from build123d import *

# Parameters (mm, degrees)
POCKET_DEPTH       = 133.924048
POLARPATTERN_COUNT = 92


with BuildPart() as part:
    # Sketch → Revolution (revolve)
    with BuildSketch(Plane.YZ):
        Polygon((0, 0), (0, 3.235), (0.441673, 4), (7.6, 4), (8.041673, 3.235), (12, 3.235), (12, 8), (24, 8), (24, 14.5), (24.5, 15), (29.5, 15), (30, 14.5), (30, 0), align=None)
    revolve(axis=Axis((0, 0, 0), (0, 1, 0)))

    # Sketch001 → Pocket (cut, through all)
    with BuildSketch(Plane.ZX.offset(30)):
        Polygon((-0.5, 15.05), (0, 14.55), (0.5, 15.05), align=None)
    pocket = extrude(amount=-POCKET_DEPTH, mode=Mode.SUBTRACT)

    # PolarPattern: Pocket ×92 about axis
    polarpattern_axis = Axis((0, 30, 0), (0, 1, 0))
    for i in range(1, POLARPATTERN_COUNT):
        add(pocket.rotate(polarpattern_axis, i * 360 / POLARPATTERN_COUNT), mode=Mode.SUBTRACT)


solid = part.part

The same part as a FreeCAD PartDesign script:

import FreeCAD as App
import Part
import Sketcher
Q = App.Units.Quantity


def add_polygon(sketch, points):
    """Adds a closed chain of lines whose ends are joined by coincident constraints."""
    first, n = sketch.GeometryCount, len(points)
    for a, b in zip(points, points[1:] + points[:1]):
        sketch.addGeometry(Part.LineSegment(App.Vector(*a, 0), App.Vector(*b, 0)), False)
    for i in range(n):
        sketch.addConstraint(Sketcher.Constraint("Coincident", first + i, 2, first + (i + 1) % n, 1))

doc = App.newDocument("Part")
params = doc.addObject("Spreadsheet::Sheet", "Params")
for row, (alias, value) in enumerate([
    ("sketch1_width", "30 mm"),
    ("sketch1_width2", "5 mm"),
    ("sketch1_width3", "12 mm"),
    ("sketch1_height", "14.5 mm"),
    ("sketch1_height2", "6.5 mm"),
    ("revolution_angle", "360 deg"),
    ("sketch2_height", "1 mm"),
], start=1):
    params.set(f"A{row}", alias)
    params.set(f"B{row}", "=" + value)
    params.setAlias(f"B{row}", alias)

body = doc.addObject("PartDesign::Body", "Body")

sketch1 = body.newObject("Sketcher::SketchObject", "Sketch")
sketch1.AttachmentSupport = (doc.getObject("YZ_Plane"), [""])
sketch1.MapMode = "FlatFace"
add_polygon(sketch1, [(0, 3.235), (0, 0), (30, 0), (30, 14.5), (29.5, 15), (24.5, 15), (24, 14.5), (24, 8), (12, 8), (12, 3.235), (8.041673, 3.235), (7.6, 4), (0.441673, 4)])
sketch1.addConstraint([
    Sketcher.Constraint("Vertical", 0),
    Sketcher.Constraint("Horizontal", 1),
    Sketcher.Constraint("Vertical", 2),
    Sketcher.Constraint("Horizontal", 4),
    Sketcher.Constraint("Vertical", 6),
    Sketcher.Constraint("Horizontal", 7),
    Sketcher.Constraint("Vertical", 8),
    Sketcher.Constraint("Horizontal", 9),
    Sketcher.Constraint("Horizontal", 11),
    Sketcher.Constraint("Coincident", 0, 2, -1, 1),
    Sketcher.Constraint("Perpendicular", 3, 5),
    Sketcher.Constraint("Horizontal", 2, 2, 5, 2),
    Sketcher.Constraint("Horizontal", 9, 2, 12, 2),
    Sketcher.Constraint("Equal", 3, 5),
    Sketcher.Constraint("Equal", 10, 12),
    Sketcher.Constraint("DistanceX", 1, 1, 1, 2, 30.0),
    Sketcher.Constraint("DistanceX", 4, 2, 4, 1, 5.0),
    Sketcher.Constraint("DistanceX", 7, 2, 7, 1, 12.0),
    Sketcher.Constraint("Angle", 10, Q("120.000002 deg")),
    Sketcher.Constraint("DistanceY", 2, 1, 2, 2, 14.5),
    Sketcher.Constraint("DistanceY", 6, 2, 6, 1, 6.5),
    Sketcher.Constraint("DistanceY", -1, 1, 3, 2, 15.0),
    Sketcher.Constraint("DistanceY", -1, 1, 10, 2, 4.0),
    Sketcher.Constraint("DistanceX", -1, 1, 10, 2, 7.6),
    Sketcher.Constraint("DistanceY", 0, 2, 0, 1, 3.235),
])
sketch1.setExpression("Constraints[28]", "Params.sketch1_width")
sketch1.setExpression("Constraints[29]", "Params.sketch1_width2")
sketch1.setExpression("Constraints[30]", "Params.sketch1_width3")
sketch1.setExpression("Constraints[32]", "Params.sketch1_height")
sketch1.setExpression("Constraints[33]", "Params.sketch1_height2")
revolution = body.newObject("PartDesign::Revolution", "Revolution")
revolution.Profile = sketch1
revolution.ReferenceAxis = (sketch1, ["H_Axis"])
revolution.setExpression("Angle", "Params.revolution_angle")

sketch2 = body.newObject("Sketcher::SketchObject", "Sketch001")
sketch2.AttachmentSupport = (doc.getObject("XZ_Plane"), [""])
sketch2.MapMode = "FlatFace"
sketch2.AttachmentOffset = App.Placement(App.Vector(0, 0, -30), App.Rotation())
add_polygon(sketch2, [(15.05, -0.5), (14.55, 0), (15.05, 0.5)])
sketch2.addConstraint([
    Sketcher.Constraint("Vertical", 2),
    Sketcher.Constraint("PointOnObject", 0, 2, -1),
    Sketcher.Constraint("Perpendicular", 0, 1),
    Sketcher.Constraint("Equal", 0, 1),
    Sketcher.Constraint("DistanceY", 2, 2, 2, 1, 1.0),
    Sketcher.Constraint("DistanceX", -1, 1, 0, 2, 14.55),
])
sketch2.setExpression("Constraints[7]", "Params.sketch2_height")
pocket1 = body.newObject("PartDesign::Pocket", "Pocket")
pocket1.Profile = sketch2
pocket1.Type = "ThroughAll"
pocket1.Reversed = True
doc.recompute()

polarpattern = body.newObject("PartDesign::PolarPattern", "PolarPattern")
polarpattern.Originals = [pocket1]
polarpattern.Axis = (doc.getObject("Y_Axis"), [""])
polarpattern.Angle = 360
polarpattern.Occurrences = 92
body.Tip = polarpattern

doc.recompute()
